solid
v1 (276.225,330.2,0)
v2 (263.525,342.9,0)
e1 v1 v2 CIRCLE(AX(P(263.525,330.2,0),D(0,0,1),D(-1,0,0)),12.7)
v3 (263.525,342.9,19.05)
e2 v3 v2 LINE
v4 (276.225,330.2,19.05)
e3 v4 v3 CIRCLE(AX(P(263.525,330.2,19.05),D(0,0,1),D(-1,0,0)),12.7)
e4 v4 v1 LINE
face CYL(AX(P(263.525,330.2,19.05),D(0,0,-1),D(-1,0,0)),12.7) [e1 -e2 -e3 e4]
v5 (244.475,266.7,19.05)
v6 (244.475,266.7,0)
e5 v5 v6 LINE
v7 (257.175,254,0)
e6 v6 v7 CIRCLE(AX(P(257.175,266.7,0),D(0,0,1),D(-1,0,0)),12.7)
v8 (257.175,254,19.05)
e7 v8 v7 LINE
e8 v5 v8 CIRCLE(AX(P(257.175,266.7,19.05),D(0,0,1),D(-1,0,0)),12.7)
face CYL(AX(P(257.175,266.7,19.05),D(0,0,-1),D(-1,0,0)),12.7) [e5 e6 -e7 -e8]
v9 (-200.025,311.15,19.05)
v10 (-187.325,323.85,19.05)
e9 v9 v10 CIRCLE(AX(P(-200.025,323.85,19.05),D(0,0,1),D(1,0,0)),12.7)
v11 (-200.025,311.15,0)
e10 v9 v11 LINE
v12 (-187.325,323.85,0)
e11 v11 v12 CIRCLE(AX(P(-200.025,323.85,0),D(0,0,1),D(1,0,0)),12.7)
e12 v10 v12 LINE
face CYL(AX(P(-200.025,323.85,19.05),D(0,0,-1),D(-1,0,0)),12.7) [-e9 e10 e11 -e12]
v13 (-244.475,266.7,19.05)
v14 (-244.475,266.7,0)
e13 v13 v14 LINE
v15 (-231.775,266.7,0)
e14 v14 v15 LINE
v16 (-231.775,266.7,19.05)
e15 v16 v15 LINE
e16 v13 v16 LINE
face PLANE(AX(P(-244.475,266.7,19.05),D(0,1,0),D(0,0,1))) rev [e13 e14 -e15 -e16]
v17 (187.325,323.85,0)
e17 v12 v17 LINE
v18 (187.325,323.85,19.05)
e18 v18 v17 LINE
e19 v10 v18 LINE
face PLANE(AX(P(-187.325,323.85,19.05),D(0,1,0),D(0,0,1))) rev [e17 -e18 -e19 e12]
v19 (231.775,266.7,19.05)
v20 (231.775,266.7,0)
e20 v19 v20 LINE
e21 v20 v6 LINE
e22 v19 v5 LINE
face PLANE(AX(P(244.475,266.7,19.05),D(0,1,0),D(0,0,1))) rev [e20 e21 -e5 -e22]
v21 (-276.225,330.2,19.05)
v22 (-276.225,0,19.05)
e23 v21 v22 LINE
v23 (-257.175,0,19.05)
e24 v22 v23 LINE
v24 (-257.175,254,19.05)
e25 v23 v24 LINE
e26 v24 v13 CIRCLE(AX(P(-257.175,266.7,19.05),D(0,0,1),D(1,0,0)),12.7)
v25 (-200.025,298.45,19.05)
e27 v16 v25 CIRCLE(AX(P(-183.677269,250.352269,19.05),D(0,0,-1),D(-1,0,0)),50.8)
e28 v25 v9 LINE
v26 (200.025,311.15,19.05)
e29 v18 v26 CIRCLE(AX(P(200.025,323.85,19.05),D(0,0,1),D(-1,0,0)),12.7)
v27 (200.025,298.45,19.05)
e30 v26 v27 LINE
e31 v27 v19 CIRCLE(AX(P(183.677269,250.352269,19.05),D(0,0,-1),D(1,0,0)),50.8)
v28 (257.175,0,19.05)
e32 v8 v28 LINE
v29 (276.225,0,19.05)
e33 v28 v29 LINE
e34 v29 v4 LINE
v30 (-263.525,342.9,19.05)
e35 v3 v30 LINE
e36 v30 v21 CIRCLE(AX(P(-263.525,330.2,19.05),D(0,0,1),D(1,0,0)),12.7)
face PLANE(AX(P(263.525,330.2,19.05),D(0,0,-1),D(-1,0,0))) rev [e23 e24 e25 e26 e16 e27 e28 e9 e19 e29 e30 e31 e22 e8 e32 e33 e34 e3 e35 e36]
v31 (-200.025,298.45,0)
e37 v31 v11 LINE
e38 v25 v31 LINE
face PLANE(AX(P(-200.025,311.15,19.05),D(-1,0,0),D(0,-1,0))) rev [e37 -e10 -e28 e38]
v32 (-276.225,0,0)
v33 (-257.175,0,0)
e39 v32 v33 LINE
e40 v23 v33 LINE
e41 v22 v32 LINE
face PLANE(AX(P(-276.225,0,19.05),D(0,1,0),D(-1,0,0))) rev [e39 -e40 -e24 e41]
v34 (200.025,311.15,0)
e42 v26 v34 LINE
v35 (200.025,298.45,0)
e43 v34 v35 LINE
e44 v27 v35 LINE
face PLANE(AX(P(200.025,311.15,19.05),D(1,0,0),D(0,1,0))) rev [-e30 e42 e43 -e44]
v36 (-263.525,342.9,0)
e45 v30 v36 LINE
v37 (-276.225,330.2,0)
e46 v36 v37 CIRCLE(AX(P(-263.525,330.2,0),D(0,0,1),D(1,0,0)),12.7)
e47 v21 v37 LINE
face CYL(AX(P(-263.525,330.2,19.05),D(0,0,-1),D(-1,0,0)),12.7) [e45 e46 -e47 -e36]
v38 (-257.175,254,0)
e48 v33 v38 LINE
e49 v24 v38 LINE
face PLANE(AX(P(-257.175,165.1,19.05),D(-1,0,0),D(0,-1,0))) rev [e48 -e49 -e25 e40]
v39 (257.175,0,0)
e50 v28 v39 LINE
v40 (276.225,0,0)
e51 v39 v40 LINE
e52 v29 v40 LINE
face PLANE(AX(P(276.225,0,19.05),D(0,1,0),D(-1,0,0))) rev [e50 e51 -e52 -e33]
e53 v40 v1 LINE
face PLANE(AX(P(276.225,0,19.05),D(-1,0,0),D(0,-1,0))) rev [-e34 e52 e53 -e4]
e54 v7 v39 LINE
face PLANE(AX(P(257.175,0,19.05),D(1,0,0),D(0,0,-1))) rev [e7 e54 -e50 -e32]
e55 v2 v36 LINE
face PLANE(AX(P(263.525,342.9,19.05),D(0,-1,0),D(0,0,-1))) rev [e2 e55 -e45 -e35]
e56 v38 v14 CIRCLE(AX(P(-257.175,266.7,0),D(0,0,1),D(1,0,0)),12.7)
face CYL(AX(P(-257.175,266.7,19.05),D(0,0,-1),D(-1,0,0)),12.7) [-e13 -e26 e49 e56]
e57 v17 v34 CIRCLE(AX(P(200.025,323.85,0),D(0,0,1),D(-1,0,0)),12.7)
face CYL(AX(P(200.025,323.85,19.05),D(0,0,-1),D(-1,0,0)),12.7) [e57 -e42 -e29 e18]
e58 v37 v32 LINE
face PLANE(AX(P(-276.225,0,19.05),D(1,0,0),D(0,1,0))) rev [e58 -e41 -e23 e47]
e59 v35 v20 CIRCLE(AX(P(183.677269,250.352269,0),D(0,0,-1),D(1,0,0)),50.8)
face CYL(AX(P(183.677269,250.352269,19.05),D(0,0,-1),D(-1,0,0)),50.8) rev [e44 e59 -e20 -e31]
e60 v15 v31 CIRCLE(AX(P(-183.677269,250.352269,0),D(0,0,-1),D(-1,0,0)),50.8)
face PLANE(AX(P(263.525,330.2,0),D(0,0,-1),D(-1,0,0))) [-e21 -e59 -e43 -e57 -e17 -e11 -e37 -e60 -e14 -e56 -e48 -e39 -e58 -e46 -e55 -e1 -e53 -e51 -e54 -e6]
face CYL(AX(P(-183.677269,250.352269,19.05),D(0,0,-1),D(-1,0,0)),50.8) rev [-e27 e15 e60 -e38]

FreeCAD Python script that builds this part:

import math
import FreeCAD as App
import Part
import Sketcher

V = App.Vector
Q = App.Units.Quantity

doc = App.newDocument("Part")
body = doc.addObject("PartDesign::Body", "Body")

# Sketch on XY plane
sketch1 = doc.addObject("Sketcher::SketchObject", "Sketch")
body.addObject(sketch1)
sketch1.AttachmentSupport = (doc.XY_Plane, [""])
sketch1.MapMode = "FlatFace"
sketch1.addGeometry(Part.LineSegment(V(257, 0, 0), V(276, 0, 0)), False)
sketch1.addGeometry(Part.LineSegment(V(276, 0, 0), V(276, 330, 0)), False)
sketch1.addGeometry(Part.ArcOfCircle(Part.Circle(V(264, 330, 0), V(0, 0, 1), 13), math.radians(0), math.radians(90)), False)
sketch1.addGeometry(Part.LineSegment(V(264, 343, 0), V(-264, 343, 0)), False)
sketch1.addGeometry(Part.ArcOfCircle(Part.Circle(V(-264, 330, 0), V(0, 0, 1), 13), math.radians(90), math.radians(180)), False)
sketch1.addGeometry(Part.LineSegment(V(-276, 330, 0), V(-276, 0, 0)), False)
sketch1.addGeometry(Part.LineSegment(V(-276, 0, 0), V(-257, 0, 0)), False)
sketch1.addGeometry(Part.LineSegment(V(-257, 0, 0), V(-257, 254, 0)), False)
sketch1.addGeometry(Part.ArcOfCircle(Part.Circle(V(-257, 267, 0), V(0, 0, 1), 13), math.radians(-90), math.radians(0)), False)
sketch1.addGeometry(Part.LineSegment(V(-244, 267, 0), V(-232, 267, 0)), False)
sketch1.addGeometry(Part.ArcOfCircle(Part.Circle(V(-184, 250, 0), V(0, 0, 1), 51), math.radians(109), math.radians(161)), False)
sketch1.addGeometry(Part.LineSegment(V(-200, 298, 0), V(-200, 311, 0)), False)
sketch1.addGeometry(Part.ArcOfCircle(Part.Circle(V(-200, 324, 0), V(0, 0, 1), 13), math.radians(-90), math.radians(0)), False)
sketch1.addGeometry(Part.LineSegment(V(-187, 324, 0), V(187, 324, 0)), False)
sketch1.addGeometry(Part.ArcOfCircle(Part.Circle(V(200, 324, 0), V(0, 0, 1), 13), math.radians(180), math.radians(270)), False)
sketch1.addGeometry(Part.LineSegment(V(200, 311, 0), V(200, 298, 0)), False)
sketch1.addGeometry(Part.ArcOfCircle(Part.Circle(V(184, 250, 0), V(0, 0, 1), 51), math.radians(19), math.radians(71)), False)
sketch1.addGeometry(Part.LineSegment(V(232, 267, 0), V(244, 267, 0)), False)
sketch1.addGeometry(Part.ArcOfCircle(Part.Circle(V(257, 267, 0), V(0, 0, 1), 13), math.radians(180), math.radians(270)), False)
sketch1.addGeometry(Part.LineSegment(V(257, 254, 0), V(257, 0, 0)), False)
sketch1.addConstraint(Sketcher.Constraint("Coincident", 0, 2, 1, 1))
sketch1.addConstraint(Sketcher.Constraint("Tangent", 1, 2, 2, 1))
sketch1.addConstraint(Sketcher.Constraint("Tangent", 2, 2, 3, 1))
sketch1.addConstraint(Sketcher.Constraint("Tangent", 3, 2, 4, 1))
sketch1.addConstraint(Sketcher.Constraint("Tangent", 4, 2, 5, 1))
sketch1.addConstraint(Sketcher.Constraint("Coincident", 5, 2, 6, 1))
sketch1.addConstraint(Sketcher.Constraint("Coincident", 6, 2, 7, 1))
sketch1.addConstraint(Sketcher.Constraint("Coincident", 7, 2, 8, 1))
sketch1.addConstraint(Sketcher.Constraint("Coincident", 8, 2, 9, 1))
sketch1.addConstraint(Sketcher.Constraint("Coincident", 9, 2, 10, 2))
sketch1.addConstraint(Sketcher.Constraint("Coincident", 10, 1, 11, 1))
sketch1.addConstraint(Sketcher.Constraint("Coincident", 11, 2, 12, 1))
sketch1.addConstraint(Sketcher.Constraint("Coincident", 12, 2, 13, 1))
sketch1.addConstraint(Sketcher.Constraint("Coincident", 13, 2, 14, 1))
sketch1.addConstraint(Sketcher.Constraint("Coincident", 14, 2, 15, 1))
sketch1.addConstraint(Sketcher.Constraint("Coincident", 15, 2, 16, 2))
sketch1.addConstraint(Sketcher.Constraint("Coincident", 16, 1, 17, 1))
sketch1.addConstraint(Sketcher.Constraint("Coincident", 17, 2, 18, 1))
sketch1.addConstraint(Sketcher.Constraint("Coincident", 18, 2, 19, 1))
sketch1.addConstraint(Sketcher.Constraint("Coincident", 19, 2, 0, 1))
sketch1.addConstraint(Sketcher.Constraint("Horizontal", 0))
sketch1.addConstraint(Sketcher.Constraint("Vertical", 1))
sketch1.addConstraint(Sketcher.Constraint("Horizontal", 3))
sketch1.addConstraint(Sketcher.Constraint("Vertical", 5))
sketch1.addConstraint(Sketcher.Constraint("Horizontal", 6))
sketch1.addConstraint(Sketcher.Constraint("Vertical", 7))
sketch1.addConstraint(Sketcher.Constraint("Horizontal", 9))
sketch1.addConstraint(Sketcher.Constraint("Vertical", 11))
sketch1.addConstraint(Sketcher.Constraint("Horizontal", 13))
sketch1.addConstraint(Sketcher.Constraint("Vertical", 15))
sketch1.addConstraint(Sketcher.Constraint("Horizontal", 17))
sketch1.addConstraint(Sketcher.Constraint("Vertical", 19))
sketch1.addConstraint(Sketcher.Constraint("Equal", 2, 4))
sketch1.addConstraint(Sketcher.Constraint("Equal", 4, 8))
sketch1.addConstraint(Sketcher.Constraint("Equal", 8, 12))
sketch1.addConstraint(Sketcher.Constraint("Equal", 12, 14))
sketch1.addConstraint(Sketcher.Constraint("Equal", 10, 16))
sketch1.addConstraint(Sketcher.Constraint("Equal", 14, 18))
sketch1.addConstraint(Sketcher.Constraint("Symmetric", 0, 2, 5, 2, -1, 1))
sketch1.addConstraint(Sketcher.Constraint("Symmetric", 12, 3, 14, 3, -2))
sketch1.addConstraint(Sketcher.Constraint("Symmetric", 10, 3, 16, 3, -2))
sketch1.addConstraint(Sketcher.Constraint("Symmetric", 8, 3, 18, 3, -2))
sketch1.addConstraint(Sketcher.Constraint("Symmetric", 6, 2, 19, 2, -2))
sketch1.addConstraint(Sketcher.Constraint("Horizontal", 18, 3, 8, 2))
sketch1.addConstraint(Sketcher.Constraint("Horizontal", 14, 3, 12, 2))
sketch1.addConstraint(Sketcher.Constraint("Horizontal", 10, 1, 15, 2))
sketch1.addConstraint(Sketcher.Constraint("Horizontal", 9, 2, 16, 1))
sketch1.addConstraint(Sketcher.Constraint("Vertical", 8, 3, 6, 2))
sketch1.addConstraint(Sketcher.Constraint("Vertical", 12, 3, 10, 1))
sketch1.addConstraint(Sketcher.Constraint("Equal", 17, 11))
sketch1.addConstraint(Sketcher.Constraint("Radius", 10, Q("2 in")))
sketch1.addConstraint(Sketcher.Constraint("Radius", 2, Q("0.5 in")))
sketch1.addConstraint(Sketcher.Constraint("DistanceY", 1, 1, 1, 2, Q("13 in")))
sketch1.addConstraint(Sketcher.Constraint("DistanceY", 7, 1, 7, 2, Q("10 in")))
sketch1.addConstraint(Sketcher.Constraint("DistanceX", 9, 1, 9, 2, Q("0.5 in")))
sketch1.addConstraint(Sketcher.Constraint("DistanceX", 8, 3, 14, 3, Q("18 in")))
sketch1.addConstraint(Sketcher.Constraint("DistanceX", 14, 3, 0, 2, Q("3 in")))
sketch1.addConstraint(Sketcher.Constraint("DistanceX", 0, 1, 0, 2, Q("0.75 in")))
sketch1.addConstraint(Sketcher.Constraint("DistanceY", -1, 1, 12, 3, Q("12.75 in")))
pad1 = doc.addObject("PartDesign::Pad", "Pad")
body.addObject(pad1)
pad1.Profile = sketch1
pad1.Length = Q("0.75 in")

doc.recompute()
